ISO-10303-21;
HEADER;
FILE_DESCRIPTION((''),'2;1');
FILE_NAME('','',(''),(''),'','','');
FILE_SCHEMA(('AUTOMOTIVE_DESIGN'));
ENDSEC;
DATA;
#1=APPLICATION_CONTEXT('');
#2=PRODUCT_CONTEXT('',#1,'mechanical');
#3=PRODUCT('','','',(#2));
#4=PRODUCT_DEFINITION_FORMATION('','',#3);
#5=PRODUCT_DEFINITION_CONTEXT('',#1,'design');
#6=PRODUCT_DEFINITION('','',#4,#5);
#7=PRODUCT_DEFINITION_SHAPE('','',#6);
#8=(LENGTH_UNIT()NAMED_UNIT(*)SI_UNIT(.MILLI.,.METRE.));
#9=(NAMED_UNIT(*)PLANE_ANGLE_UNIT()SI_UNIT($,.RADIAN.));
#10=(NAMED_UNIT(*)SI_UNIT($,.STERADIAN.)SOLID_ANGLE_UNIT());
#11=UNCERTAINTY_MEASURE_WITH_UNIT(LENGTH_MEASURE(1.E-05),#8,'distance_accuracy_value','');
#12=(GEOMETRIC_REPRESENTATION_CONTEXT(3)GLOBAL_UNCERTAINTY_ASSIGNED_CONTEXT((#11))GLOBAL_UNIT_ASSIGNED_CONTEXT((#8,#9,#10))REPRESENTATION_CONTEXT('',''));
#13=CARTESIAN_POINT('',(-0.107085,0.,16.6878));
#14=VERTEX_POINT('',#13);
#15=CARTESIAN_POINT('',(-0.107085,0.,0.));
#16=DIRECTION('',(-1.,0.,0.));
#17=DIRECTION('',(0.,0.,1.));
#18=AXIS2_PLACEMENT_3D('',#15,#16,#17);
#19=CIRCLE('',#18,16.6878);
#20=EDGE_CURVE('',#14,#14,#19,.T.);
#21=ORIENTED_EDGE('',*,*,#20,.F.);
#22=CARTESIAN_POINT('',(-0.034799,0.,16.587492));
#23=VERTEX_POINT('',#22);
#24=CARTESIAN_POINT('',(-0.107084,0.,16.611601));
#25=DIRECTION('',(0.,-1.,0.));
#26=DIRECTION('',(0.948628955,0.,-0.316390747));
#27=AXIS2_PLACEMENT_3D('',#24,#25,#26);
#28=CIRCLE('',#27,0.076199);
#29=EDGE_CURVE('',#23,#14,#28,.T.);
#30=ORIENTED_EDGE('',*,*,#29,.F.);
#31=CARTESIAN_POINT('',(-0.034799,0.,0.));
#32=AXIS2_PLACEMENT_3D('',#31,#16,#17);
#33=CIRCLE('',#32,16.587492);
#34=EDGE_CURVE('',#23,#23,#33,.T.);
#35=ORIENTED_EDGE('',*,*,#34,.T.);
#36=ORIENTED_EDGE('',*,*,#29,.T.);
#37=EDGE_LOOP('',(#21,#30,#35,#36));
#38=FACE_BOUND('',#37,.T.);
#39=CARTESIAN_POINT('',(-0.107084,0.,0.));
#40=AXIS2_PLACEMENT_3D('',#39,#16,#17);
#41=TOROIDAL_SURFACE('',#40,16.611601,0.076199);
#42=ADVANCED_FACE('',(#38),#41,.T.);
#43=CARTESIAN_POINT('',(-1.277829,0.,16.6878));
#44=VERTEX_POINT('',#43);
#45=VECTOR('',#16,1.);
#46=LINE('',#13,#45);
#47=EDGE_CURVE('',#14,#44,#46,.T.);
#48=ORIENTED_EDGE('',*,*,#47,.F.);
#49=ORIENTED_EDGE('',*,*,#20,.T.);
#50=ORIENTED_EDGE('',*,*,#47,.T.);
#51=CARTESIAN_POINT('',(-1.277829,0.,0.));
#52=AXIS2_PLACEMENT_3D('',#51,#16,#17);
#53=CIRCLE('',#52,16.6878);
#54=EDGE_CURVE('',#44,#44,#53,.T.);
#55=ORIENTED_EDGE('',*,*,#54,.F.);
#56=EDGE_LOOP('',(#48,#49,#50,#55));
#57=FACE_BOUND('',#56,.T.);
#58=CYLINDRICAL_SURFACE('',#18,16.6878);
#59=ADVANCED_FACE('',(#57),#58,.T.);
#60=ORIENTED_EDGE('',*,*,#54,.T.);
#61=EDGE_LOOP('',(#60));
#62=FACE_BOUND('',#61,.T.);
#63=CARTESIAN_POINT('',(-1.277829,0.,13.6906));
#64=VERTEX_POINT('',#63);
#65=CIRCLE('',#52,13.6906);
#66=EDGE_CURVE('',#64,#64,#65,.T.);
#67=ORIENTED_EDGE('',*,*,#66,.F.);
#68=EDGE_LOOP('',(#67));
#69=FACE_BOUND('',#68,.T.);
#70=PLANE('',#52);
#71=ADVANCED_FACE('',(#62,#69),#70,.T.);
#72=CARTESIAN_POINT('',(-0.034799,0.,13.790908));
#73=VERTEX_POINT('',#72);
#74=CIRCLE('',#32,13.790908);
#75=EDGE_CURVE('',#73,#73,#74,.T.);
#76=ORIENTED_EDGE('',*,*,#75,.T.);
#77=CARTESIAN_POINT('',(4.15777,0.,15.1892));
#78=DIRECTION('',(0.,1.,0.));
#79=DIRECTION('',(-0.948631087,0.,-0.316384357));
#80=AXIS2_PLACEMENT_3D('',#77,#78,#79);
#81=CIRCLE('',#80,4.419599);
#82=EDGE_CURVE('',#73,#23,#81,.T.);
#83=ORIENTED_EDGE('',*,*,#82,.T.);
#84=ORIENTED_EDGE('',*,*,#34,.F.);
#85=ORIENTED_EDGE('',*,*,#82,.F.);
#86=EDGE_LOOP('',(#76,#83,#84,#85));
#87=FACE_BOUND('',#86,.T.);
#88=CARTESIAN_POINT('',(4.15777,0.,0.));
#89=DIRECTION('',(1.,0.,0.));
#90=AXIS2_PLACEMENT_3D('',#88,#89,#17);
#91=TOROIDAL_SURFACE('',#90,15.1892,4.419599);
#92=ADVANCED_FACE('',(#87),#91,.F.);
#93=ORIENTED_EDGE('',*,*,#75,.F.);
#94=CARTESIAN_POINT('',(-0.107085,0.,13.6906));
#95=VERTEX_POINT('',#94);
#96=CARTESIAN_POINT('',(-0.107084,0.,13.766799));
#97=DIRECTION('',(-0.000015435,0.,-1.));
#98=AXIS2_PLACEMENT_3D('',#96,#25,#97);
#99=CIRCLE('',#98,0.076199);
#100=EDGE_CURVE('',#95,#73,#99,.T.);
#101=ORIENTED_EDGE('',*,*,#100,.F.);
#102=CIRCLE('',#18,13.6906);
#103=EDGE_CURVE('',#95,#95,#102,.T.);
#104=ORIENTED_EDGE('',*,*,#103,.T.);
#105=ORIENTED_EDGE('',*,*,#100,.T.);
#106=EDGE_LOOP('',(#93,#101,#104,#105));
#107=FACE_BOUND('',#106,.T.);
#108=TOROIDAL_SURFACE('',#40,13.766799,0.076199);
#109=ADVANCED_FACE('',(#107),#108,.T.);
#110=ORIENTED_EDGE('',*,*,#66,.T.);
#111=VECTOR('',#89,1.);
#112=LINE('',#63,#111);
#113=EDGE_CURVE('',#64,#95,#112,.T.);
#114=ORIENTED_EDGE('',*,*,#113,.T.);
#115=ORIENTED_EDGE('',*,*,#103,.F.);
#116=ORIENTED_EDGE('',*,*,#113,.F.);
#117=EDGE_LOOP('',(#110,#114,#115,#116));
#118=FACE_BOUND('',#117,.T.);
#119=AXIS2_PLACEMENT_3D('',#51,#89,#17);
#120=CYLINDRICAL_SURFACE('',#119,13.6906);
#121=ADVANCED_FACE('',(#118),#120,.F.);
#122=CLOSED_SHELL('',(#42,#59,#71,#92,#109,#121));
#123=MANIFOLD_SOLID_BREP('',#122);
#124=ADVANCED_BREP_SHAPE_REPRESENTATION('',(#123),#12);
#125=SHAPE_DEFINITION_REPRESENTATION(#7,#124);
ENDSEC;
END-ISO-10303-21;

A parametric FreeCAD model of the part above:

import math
import FreeCAD as App
import Part
import Sketcher
Q = App.Units.Quantity

doc = App.newDocument("Part")
params = doc.addObject("Spreadsheet::Sheet", "Params")
for row, (alias, value) in enumerate([
    ("sketch1_radius", "0.003 in"),
    ("sketch1_radius2", "0.174 in"),
    ("sketch1_height", "0.118 in"),
    ("revolution_angle", "360 deg"),
], start=1):
    params.set(f"A{row}", alias)
    params.set(f"B{row}", "=" + value)
    params.setAlias(f"B{row}", alias)

body = doc.addObject("PartDesign::Body", "Body")

# Sketch on XZ plane
sketch1 = body.newObject("Sketcher::SketchObject", "Sketch")
sketch1.AttachmentSupport = (doc.getObject("XZ_Plane"), [""])
sketch1.MapMode = "FlatFace"
sketch1.addGeometry([
    Part.ArcOfCircle(Part.Circle(App.Vector(-0.107084, 16.611601, 0), App.Vector(0, 0, 1), 0.076199), math.radians(-18.444793), math.radians(90.000884)),  # 0
    Part.LineSegment(App.Vector(-0.107085, 16.6878, 0), App.Vector(-1.277829, 16.6878, 0)),  # 1
    Part.LineSegment(App.Vector(-1.277829, 16.6878, 0), App.Vector(-1.277829, 13.6906, 0)),  # 2
    Part.LineSegment(App.Vector(-1.277829, 13.6906, 0), App.Vector(-0.107085, 13.6906, 0)),  # 3
    Part.ArcOfCircle(Part.Circle(App.Vector(-0.107084, 13.766799, 0), App.Vector(0, 0, 1), 0.076199), math.radians(-90.000884), math.radians(18.444793)),  # 4
    Part.ArcOfCircle(Part.Circle(App.Vector(4.15777, 15.1892, 0), App.Vector(0, 0, 1), 4.419599), math.radians(161.555594), math.radians(198.444406)),  # 5
], False)
sketch1.addConstraint([
    Sketcher.Constraint("Coincident", 0, 2, 1, 1),
    Sketcher.Constraint("Coincident", 1, 2, 2, 1),
    Sketcher.Constraint("Coincident", 2, 2, 3, 1),
    Sketcher.Constraint("Coincident", 3, 2, 4, 1),
    Sketcher.Constraint("Coincident", 4, 2, 5, 2),
    Sketcher.Constraint("Coincident", 5, 1, 0, 1),
    Sketcher.Constraint("Horizontal", 1),
    Sketcher.Constraint("Vertical", 2),
    Sketcher.Constraint("Horizontal", 3),
    Sketcher.Constraint("Equal", 0, 4),
    Sketcher.Constraint("Vertical", 0, 3, 4, 3),
    Sketcher.Constraint("Vertical", 4, 3, 0, 2),
    Sketcher.Constraint("Vertical", 0, 2, 3, 2),
    Sketcher.Constraint("Vertical", 4, 2, 5, 1),
    Sketcher.Constraint("Radius", 0, Q("0.003 in")),
    Sketcher.Constraint("Radius", 5, Q("0.174 in")),
    Sketcher.Constraint("DistanceY", 2, 2, 2, 1, Q("0.118 in")),
    Sketcher.Constraint("DistanceY", -1, 1, 0, 3, Q("0.654 in")),
    Sketcher.Constraint("DistanceX", 1, 2, 5, 3, Q("0.214 in")),
    Sketcher.Constraint("DistanceX", 4, 2, -1, 1, Q("0.034799 mm")),
    Sketcher.Constraint("DistanceX", -1, 1, 5, 3, Q("4.15777 mm")),
])
sketch1.setExpression("Constraints[14]", "Params.sketch1_radius")
sketch1.setExpression("Constraints[15]", "Params.sketch1_radius2")
sketch1.setExpression("Constraints[16]", "Params.sketch1_height")
revolution = body.newObject("PartDesign::Revolution", "Revolution")
revolution.Profile = sketch1
revolution.ReferenceAxis = (sketch1, ["H_Axis"])
revolution.setExpression("Angle", "Params.revolution_angle")

doc.recompute()
